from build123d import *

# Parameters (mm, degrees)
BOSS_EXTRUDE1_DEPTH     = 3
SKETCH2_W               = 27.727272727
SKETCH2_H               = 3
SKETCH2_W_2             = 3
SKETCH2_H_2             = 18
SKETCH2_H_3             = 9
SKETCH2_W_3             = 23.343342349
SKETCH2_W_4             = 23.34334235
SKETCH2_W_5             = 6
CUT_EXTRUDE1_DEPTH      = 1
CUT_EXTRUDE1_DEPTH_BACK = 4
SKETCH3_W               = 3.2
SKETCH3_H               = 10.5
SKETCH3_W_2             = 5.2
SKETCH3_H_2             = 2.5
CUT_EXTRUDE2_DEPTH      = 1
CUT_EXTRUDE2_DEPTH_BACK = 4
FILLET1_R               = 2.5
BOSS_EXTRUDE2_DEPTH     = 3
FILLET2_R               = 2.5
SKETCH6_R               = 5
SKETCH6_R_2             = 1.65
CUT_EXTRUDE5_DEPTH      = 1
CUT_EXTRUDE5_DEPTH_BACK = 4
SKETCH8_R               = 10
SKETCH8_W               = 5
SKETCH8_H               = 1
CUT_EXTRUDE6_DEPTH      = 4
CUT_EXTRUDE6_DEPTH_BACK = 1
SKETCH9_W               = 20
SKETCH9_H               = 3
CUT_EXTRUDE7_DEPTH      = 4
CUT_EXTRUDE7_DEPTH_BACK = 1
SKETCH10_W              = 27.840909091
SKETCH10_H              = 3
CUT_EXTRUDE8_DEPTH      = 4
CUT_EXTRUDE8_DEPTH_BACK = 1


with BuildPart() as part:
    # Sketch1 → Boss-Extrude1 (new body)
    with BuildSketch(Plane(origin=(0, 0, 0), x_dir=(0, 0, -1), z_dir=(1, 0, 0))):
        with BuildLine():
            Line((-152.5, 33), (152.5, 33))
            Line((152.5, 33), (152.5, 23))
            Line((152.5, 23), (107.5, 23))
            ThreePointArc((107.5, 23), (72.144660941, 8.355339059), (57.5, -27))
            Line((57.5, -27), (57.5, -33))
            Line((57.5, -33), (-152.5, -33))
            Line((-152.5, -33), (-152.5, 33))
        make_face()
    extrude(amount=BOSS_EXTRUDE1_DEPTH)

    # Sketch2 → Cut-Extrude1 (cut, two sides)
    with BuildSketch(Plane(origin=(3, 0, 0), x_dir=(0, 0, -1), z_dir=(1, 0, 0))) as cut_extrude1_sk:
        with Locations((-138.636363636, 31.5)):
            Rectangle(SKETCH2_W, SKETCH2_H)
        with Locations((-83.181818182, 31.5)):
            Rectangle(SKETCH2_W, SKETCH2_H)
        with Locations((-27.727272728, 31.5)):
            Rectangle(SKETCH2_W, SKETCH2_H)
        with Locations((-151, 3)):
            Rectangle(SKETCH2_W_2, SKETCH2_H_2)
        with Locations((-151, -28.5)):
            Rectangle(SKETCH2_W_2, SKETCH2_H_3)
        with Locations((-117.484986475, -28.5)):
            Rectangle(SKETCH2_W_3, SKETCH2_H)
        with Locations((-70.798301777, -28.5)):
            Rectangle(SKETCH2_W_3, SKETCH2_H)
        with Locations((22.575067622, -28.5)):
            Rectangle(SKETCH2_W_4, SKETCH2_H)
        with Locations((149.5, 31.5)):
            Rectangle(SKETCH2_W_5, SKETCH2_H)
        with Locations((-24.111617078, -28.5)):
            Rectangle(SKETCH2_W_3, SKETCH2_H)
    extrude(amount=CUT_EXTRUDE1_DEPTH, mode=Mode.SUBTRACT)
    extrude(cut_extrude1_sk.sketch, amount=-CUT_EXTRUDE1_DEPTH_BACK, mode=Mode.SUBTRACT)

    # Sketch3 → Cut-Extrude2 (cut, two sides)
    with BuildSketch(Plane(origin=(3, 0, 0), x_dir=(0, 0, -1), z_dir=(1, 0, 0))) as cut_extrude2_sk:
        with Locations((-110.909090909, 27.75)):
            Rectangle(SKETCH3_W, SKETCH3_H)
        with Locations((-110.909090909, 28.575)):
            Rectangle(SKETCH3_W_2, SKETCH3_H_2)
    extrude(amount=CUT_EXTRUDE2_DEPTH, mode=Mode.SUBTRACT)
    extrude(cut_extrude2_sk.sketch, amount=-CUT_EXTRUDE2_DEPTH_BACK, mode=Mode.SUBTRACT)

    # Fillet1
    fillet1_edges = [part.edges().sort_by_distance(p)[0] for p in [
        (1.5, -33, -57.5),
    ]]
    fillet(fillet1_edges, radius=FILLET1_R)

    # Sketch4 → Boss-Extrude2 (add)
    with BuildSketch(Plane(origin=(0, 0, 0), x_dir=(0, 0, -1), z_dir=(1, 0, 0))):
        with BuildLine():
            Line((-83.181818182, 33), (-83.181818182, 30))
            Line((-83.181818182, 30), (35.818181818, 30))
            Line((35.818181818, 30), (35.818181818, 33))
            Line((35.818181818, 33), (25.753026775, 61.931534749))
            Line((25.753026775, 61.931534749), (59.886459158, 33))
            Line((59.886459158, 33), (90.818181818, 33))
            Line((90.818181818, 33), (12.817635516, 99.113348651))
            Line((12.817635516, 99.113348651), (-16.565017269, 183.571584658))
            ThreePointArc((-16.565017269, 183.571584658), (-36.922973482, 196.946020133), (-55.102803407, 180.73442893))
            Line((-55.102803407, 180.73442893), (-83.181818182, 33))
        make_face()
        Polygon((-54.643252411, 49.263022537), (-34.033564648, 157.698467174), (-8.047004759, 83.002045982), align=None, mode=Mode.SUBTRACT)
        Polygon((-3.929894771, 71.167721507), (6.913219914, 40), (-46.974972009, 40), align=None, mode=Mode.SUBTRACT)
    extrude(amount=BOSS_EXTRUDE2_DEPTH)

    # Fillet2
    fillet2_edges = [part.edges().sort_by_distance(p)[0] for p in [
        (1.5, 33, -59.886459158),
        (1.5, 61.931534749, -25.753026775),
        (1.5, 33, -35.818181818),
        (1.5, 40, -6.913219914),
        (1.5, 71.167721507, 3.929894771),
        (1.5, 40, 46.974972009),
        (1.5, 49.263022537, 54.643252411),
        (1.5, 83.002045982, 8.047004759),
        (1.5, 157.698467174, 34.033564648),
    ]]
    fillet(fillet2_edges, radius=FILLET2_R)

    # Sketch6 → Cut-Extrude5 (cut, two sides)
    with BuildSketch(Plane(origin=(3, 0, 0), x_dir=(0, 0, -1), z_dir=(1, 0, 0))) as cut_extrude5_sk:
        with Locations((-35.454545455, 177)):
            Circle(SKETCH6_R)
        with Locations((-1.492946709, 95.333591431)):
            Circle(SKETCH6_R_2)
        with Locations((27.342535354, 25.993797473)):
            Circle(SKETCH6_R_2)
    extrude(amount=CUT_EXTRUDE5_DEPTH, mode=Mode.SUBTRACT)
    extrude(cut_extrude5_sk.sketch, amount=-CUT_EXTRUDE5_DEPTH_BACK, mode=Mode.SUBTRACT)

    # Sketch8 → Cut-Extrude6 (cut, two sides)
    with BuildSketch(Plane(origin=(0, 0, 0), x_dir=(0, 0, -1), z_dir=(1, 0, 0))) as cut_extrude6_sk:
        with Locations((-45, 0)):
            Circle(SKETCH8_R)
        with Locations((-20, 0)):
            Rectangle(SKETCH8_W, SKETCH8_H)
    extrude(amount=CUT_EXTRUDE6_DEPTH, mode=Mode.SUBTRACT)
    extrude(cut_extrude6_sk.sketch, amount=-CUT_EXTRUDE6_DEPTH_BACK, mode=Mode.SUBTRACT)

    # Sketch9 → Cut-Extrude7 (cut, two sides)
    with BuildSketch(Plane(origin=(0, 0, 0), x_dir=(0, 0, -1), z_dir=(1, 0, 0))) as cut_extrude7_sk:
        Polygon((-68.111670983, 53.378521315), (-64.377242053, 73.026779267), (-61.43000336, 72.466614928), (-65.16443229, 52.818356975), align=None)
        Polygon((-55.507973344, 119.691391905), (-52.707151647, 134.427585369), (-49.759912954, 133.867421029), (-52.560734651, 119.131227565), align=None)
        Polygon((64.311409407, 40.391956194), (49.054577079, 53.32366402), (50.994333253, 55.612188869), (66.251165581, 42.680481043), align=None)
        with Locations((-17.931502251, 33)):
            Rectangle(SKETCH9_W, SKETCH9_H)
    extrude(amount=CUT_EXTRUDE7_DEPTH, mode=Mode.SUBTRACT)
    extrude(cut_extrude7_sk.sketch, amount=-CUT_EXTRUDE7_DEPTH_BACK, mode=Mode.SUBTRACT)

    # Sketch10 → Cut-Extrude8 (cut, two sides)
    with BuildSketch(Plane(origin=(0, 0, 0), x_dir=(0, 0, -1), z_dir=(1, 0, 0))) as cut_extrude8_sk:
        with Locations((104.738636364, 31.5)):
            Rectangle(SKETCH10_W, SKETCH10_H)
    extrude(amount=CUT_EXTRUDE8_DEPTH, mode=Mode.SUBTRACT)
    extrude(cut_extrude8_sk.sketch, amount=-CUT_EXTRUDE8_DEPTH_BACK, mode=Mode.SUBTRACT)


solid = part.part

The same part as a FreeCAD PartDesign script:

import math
import FreeCAD as App
import Part
import Sketcher
from FreeCAD import Vector
Q = App.Units.Quantity


def edges_at(feature, points):
    """Names of the edges that pass closest to the given points."""
    edges = feature.Shape.Edges
    near = lambda p: min(range(len(edges)), key=lambda i: edges[i].distToShape(Part.Vertex(*p))[0])
    return sorted({f"Edge{near(p) + 1}" for p in points})


def add_polygon(sketch, points):
    """Adds a closed chain of lines whose ends are joined by coincident constraints."""
    first, n = sketch.GeometryCount, len(points)
    for a, b in zip(points, points[1:] + points[:1]):
        sketch.addGeometry(Part.LineSegment(App.Vector(*a, 0), App.Vector(*b, 0)), False)
    for i in range(n):
        sketch.addConstraint(Sketcher.Constraint("Coincident", first + i, 2, first + (i + 1) % n, 1))

doc = App.newDocument("Part")
params = doc.addObject("Spreadsheet::Sheet", "Params")
for row, (alias, value) in enumerate([
    ("sketch1_radius", "50 mm"),
    ("sketch1_width", "66 mm"),
    ("sketch1_width2", "6 mm"),
    ("sketch1_height", "305 mm"),
    ("sketch1_height2", "210 mm"),
    ("pad1_length", "3 mm"),
    ("sketch2_width", "3 mm"),
    ("sketch2_width2", "18 mm"),
    ("sketch2_width3", "9 mm"),
    ("sketch2_height", "6 mm"),
    ("sketch3_height", "1 mm"),
    ("sketch3_width", "2.5 mm"),
    ("sketch3_height2", "3.2 mm"),
    ("fillet_radius", "2.5 mm"),
    ("sketch4_radius", "20 mm"),
    ("sketch4_width", "3 mm"),
    ("sketch4_height", "119 mm"),
    ("sketch4_length", "33 mm"),
    ("pad2_length", "3 mm"),
    ("fillet2_radius", "2.5 mm"),
    ("sketch5_diameter", "10 mm"),
    ("sketch5_diameter2", "3.3 mm"),
    ("sketch6_diameter", "20 mm"),
    ("sketch6_width", "1 mm"),
    ("sketch6_height", "5 mm"),
    ("sketch7_width", "3 mm"),
    ("sketch7_height", "20 mm"),
    ("sketch7_length", "20 mm"),
    ("sketch7_length2", "3 mm"),
    ("sketch7_length3", "15 mm"),
    ("sketch8_width", "3 mm"),
], start=1):
    params.set(f"A{row}", alias)
    params.set(f"B{row}", "=" + value)
    params.setAlias(f"B{row}", alias)

body = doc.addObject("PartDesign::Body", "Body")

sketch1 = doc.addObject("Sketcher::SketchObject", "Sketch")
body.addObject(sketch1)
sketch1.AttachmentSupport = (doc.YZ_Plane, [""])
sketch1.MapMode = "FlatFace"
sketch1.addGeometry([
    Part.LineSegment(Vector(33, -152, 0), Vector(33, 152, 0)),
    Part.LineSegment(Vector(33, 152, 0), Vector(-33, 152, 0)),
    Part.LineSegment(Vector(-33, 152, 0), Vector(-33, -58, 0)),
    Part.LineSegment(Vector(-33, -58, 0), Vector(-27, -58, 0)),
    Part.ArcOfCircle(Part.Circle(Vector(-27, -108, 0), Vector(0, 0, 1), 50), math.radians(0), math.radians(90)),
    Part.LineSegment(Vector(23, -108, 0), Vector(23, -152, 0)),
    Part.LineSegment(Vector(23, -152, 0), Vector(33, -152, 0)),
], False)
sketch1.addConstraint([
    Sketcher.Constraint("Coincident", 0, 2, 1, 1),
    Sketcher.Constraint("Coincident", 1, 2, 2, 1),
    Sketcher.Constraint("Coincident", 2, 2, 3, 1),
    Sketcher.Constraint("Tangent", 3, 2, 4, 2),
    Sketcher.Constraint("Tangent", 4, 1, 5, 1),
    Sketcher.Constraint("Coincident", 5, 2, 6, 1),
    Sketcher.Constraint("Coincident", 6, 2, 0, 1),
    Sketcher.Constraint("Vertical", 0),
    Sketcher.Constraint("Horizontal", 1),
    Sketcher.Constraint("Vertical", 2),
    Sketcher.Constraint("Horizontal", 3),
    Sketcher.Constraint("Vertical", 5),
    Sketcher.Constraint("Horizontal", 6),
    Sketcher.Constraint("Symmetric", 1, 2, 6, 2, -1, 1),
    Sketcher.Constraint("Radius", 4, Q("50 mm")),
    Sketcher.Constraint("DistanceX", 1, 2, 1, 1, Q("66 mm")),
    Sketcher.Constraint("DistanceX", 3, 1, 3, 2, Q("6 mm")),
    Sketcher.Constraint("DistanceY", 0, 1, 0, 2, Q("305 mm")),
    Sketcher.Constraint("DistanceY", 2, 2, 2, 1, Q("210 mm")),
])
sketch1.setExpression("Constraints[14]", "Params.sketch1_radius")
sketch1.setExpression("Constraints[15]", "Params.sketch1_width")
sketch1.setExpression("Constraints[16]", "Params.sketch1_width2")
sketch1.setExpression("Constraints[17]", "Params.sketch1_height")
sketch1.setExpression("Constraints[18]", "Params.sketch1_height2")
pad1 = doc.addObject("PartDesign::Pad", "Pad")
body.addObject(pad1)
pad1.Profile = sketch1
pad1.setExpression("Length", "Params.pad1_length")

sketch2 = doc.addObject("Sketcher::SketchObject", "Sketch001")
body.addObject(sketch2)
sketch2.AttachmentSupport = (doc.YZ_Plane, [""])
sketch2.MapMode = "FlatFace"
sketch2.AttachmentOffset = App.Placement(Vector(0, 0, 3), App.Rotation())
add_polygon(sketch2, [(33, 152.5), (30, 152.5), (30, 124.8), (33, 124.8)])
add_polygon(sketch2, [(33, 97), (30, 97), (30, 69.3), (33, 69.3)])
add_polygon(sketch2, [(33, 41.6), (30, 41.6), (30, 13.9), (33, 13.9)])
add_polygon(sketch2, [(12, 152.5), (-6, 152.5), (-6, 149.5), (12, 149.5)])
add_polygon(sketch2, [(-24, 152.5), (-33, 152.5), (-33, 149.5), (-24, 149.5)])
add_polygon(sketch2, [(-27, 129.2), (-30, 129.2), (-30, 105.8), (-27, 105.8)])
add_polygon(sketch2, [(-27, 82.5), (-30, 82.5), (-30, 59.1), (-27, 59.1)])
add_polygon(sketch2, [(-27, -10.9), (-30, -10.9), (-30, -34.2), (-27, -34.2)])
add_polygon(sketch2, [(33, -146.5), (30, -146.5), (30, -152.5), (33, -152.5)])
add_polygon(sketch2, [(-27, 35.8), (-30, 35.8), (-30, 12.4), (-27, 12.4)])
sketch2.addConstraint([
    Sketcher.Constraint("Horizontal", 0),
    Sketcher.Constraint("Vertical", 1),
    Sketcher.Constraint("Horizontal", 2),
    Sketcher.Constraint("Vertical", 3),
    Sketcher.Constraint("Horizontal", 4),
    Sketcher.Constraint("Vertical", 5),
    Sketcher.Constraint("Horizontal", 6),
    Sketcher.Constraint("Vertical", 7),
    Sketcher.Constraint("Horizontal", 8),
    Sketcher.Constraint("Vertical", 9),
    Sketcher.Constraint("Horizontal", 10),
    Sketcher.Constraint("Vertical", 11),
    Sketcher.Constraint("Horizontal", 12),
    Sketcher.Constraint("Vertical", 13),
    Sketcher.Constraint("Horizontal", 14),
    Sketcher.Constraint("Vertical", 15),
    Sketcher.Constraint("Horizontal", 16),
    Sketcher.Constraint("Vertical", 17),
    Sketcher.Constraint("Horizontal", 18),
    Sketcher.Constraint("Vertical", 19),
    Sketcher.Constraint("Horizontal", 20),
    Sketcher.Constraint("Vertical", 21),
    Sketcher.Constraint("Horizontal", 22),
    Sketcher.Constraint("Vertical", 23),
    Sketcher.Constraint("Horizontal", 24),
    Sketcher.Constraint("Vertical", 25),
    Sketcher.Constraint("Horizontal", 26),
    Sketcher.Constraint("Vertical", 27),
    Sketcher.Constraint("Horizontal", 28),
    Sketcher.Constraint("Vertical", 29),
    Sketcher.Constraint("Horizontal", 30),
    Sketcher.Constraint("Vertical", 31),
    Sketcher.Constraint("Horizontal", 32),
    Sketcher.Constraint("Vertical", 33),
    Sketcher.Constraint("Horizontal", 34),
    Sketcher.Constraint("Vertical", 35),
    Sketcher.Constraint("Horizontal", 36),
    Sketcher.Constraint("Vertical", 37),
    Sketcher.Constraint("Horizontal", 38),
    Sketcher.Constraint("Vertical", 39),
    Sketcher.Constraint("Symmetric", 16, 2, 34, 2, -1, 1),
    Sketcher.Constraint("Symmetric", 3, 2, 16, 2, -2),
    Sketcher.Constraint("Horizontal", 3, 2, 12, 2),
    Sketcher.Constraint("Horizontal", 14, 2, 17, 2),
    Sketcher.Constraint("Vertical", 1, 2, 4, 2),
    Sketcher.Constraint("Vertical", 3, 2, 6, 2),
    Sketcher.Constraint("Vertical", 5, 2, 8, 2),
    Sketcher.Constraint("Vertical", 7, 2, 10, 2),
    Sketcher.Constraint("Vertical", 21, 2, 24, 2),
    Sketcher.Constraint("Vertical", 23, 2, 26, 2),
    Sketcher.Constraint("Vertical", 25, 2, 28, 2),
    Sketcher.Constraint("Vertical", 27, 2, 30, 2),
    Sketcher.Constraint("Vertical", 9, 2, 32, 2),
    Sketcher.Constraint("Vertical", 29, 2, 36, 2),
    Sketcher.Constraint("Vertical", 31, 2, 38, 2),
    Sketcher.Constraint("Equal", 10, 20),
    Sketcher.Constraint("Equal", 3, 5),
    Sketcher.Constraint("Equal", 7, 9),
    Sketcher.Constraint("Equal", 38, 13),
    Sketcher.Constraint("Equal", 23, 25),
    Sketcher.Constraint("Equal", 27, 29),
    Sketcher.Constraint("Equal", 31, 37),
    Sketcher.Constraint("DistanceX", 0, 2, 0, 1, Q("3 mm")),
    Sketcher.Constraint("DistanceX", 12, 2, 12, 1, Q("18 mm")),
    Sketcher.Constraint("DistanceX", 16, 2, 16, 1, Q("9 mm")),
    Sketcher.Constraint("DistanceY", 33, 2, 33, 1, Q("6 mm")),
    Sketcher.Constraint("DistanceX", -1, 1, 0, 2, Q("30 mm")),
    Sketcher.Constraint("DistanceX", 12, 2, -1, 1, Q("6 mm")),
    Sketcher.Constraint("DistanceX", 20, 2, -1, 1, Q("30 mm")),
    Sketcher.Constraint("DistanceY", -1, 1, 0, 2, Q("152.5 mm")),
    Sketcher.Constraint("DistanceY", 1, 2, 1, 1, Q("27.727273 mm")),
    Sketcher.Constraint("DistanceY", 21, 2, 21, 1, Q("23.343342 mm")),
    Sketcher.Constraint("DistanceY", -1, 1, 5, 2, Q("69.318182 mm")),
    Sketcher.Constraint("DistanceY", -1, 1, 8, 2, Q("41.590909 mm")),
    Sketcher.Constraint("DistanceY", -1, 1, 25, 2, Q("59.126631 mm")),
    Sketcher.Constraint("DistanceY", 29, 2, -1, 1, Q("34.246739 mm")),
    Sketcher.Constraint("DistanceY", -1, 1, 36, 2, Q("35.783288 mm")),
    Sketcher.Constraint("DistanceY", -1, 1, 20, 2, Q("129.156658 mm")),
])
sketch2.setExpression("Constraints[102]", "Params.sketch2_width")
sketch2.setExpression("Constraints[103]", "Params.sketch2_width2")
sketch2.setExpression("Constraints[104]", "Params.sketch2_width3")
sketch2.setExpression("Constraints[105]", "Params.sketch2_height")
pocket1 = doc.addObject("PartDesign::Pocket", "Pocket")
body.addObject(pocket1)
pocket1.Profile = sketch2
pocket1.Type = "ThroughAll"
pocket1.Midplane = True

sketch3 = doc.addObject("Sketcher::SketchObject", "Sketch002")
body.addObject(sketch3)
sketch3.AttachmentSupport = (doc.YZ_Plane, [""])
sketch3.MapMode = "FlatFace"
sketch3.AttachmentOffset = App.Placement(Vector(0, 0, 3), App.Rotation())
add_polygon(sketch3, [(27.3, 112.5), (22.5, 112.5), (22.5, 109.3), (27.3, 109.3), (27.3, 108.3), (29.8, 108.3), (29.8, 109.3), (33, 109.3), (33, 112.5), (29.8, 112.5), (29.8, 113.5), (27.3, 113.5)])
sketch3.addConstraint([
    Sketcher.Constraint("Horizontal", 0),
    Sketcher.Constraint("Vertical", 1),
    Sketcher.Constraint("Horizontal", 2),
    Sketcher.Constraint("Vertical", 3),
    Sketcher.Constraint("Horizontal", 4),
    Sketcher.Constraint("Vertical", 5),
    Sketcher.Constraint("Horizontal", 6),
    Sketcher.Constraint("Vertical", 7),
    Sketcher.Constraint("Horizontal", 8),
    Sketcher.Constraint("Vertical", 9),
    Sketcher.Constraint("Horizontal", 10),
    Sketcher.Constraint("Vertical", 11),
    Sketcher.Constraint("Horizontal", 2, 2, 5, 2),
    Sketcher.Constraint("Horizontal", 0, 2, 7, 2),
    Sketcher.Constraint("Vertical", 5, 2, 8, 2),
    Sketcher.Constraint("Vertical", 3, 2, 10, 2),
    Sketcher.Constraint("Equal", 5, 9),
    Sketcher.Constraint("DistanceY", 3, 2, 3, 1, Q("1 mm")),
    Sketcher.Constraint("DistanceX", 4, 1, 4, 2, Q("2.5 mm")),
    Sketcher.Constraint("DistanceY", 1, 2, 1, 1, Q("3.2 mm")),
    Sketcher.Constraint("DistanceX", -1, 1, 6, 2, Q("33 mm")),
    Sketcher.Constraint("DistanceX", -1, 1, 0, 2, Q("22.5 mm")),
    Sketcher.Constraint("DistanceX", 0, 2, 0, 1, Q("4.825 mm")),
    Sketcher.Constraint("DistanceY", -1, 1, 0, 2, Q("112.509091 mm")),
])
sketch3.setExpression("Constraints[29]", "Params.sketch3_height")
sketch3.setExpression("Constraints[30]", "Params.sketch3_width")
sketch3.setExpression("Constraints[31]", "Params.sketch3_height2")
pocket2 = doc.addObject("PartDesign::Pocket", "Pocket001")
body.addObject(pocket2)
pocket2.Profile = sketch3
pocket2.Type = "ThroughAll"
pocket2.Midplane = True
doc.recompute()

fillet = doc.addObject("PartDesign::Fillet", "Fillet")
body.addObject(fillet)
fillet.Base = (pocket2, edges_at(pocket2, [(1.5, -33, -57.5)]))
fillet.setExpression("Radius", "Params.fillet_radius")

sketch4 = doc.addObject("Sketcher::SketchObject", "Sketch003")
body.addObject(sketch4)
sketch4.AttachmentSupport = (doc.YZ_Plane, [""])
sketch4.MapMode = "FlatFace"
sketch4.addGeometry(Part.LineSegment(Vector(33, 83.2, 0), Vector(30, 83.2, 0)), False)
sketch4.addGeometry(Part.LineSegment(Vector(30, 83.2, 0), Vector(30, -35.8, 0)), False)
sketch4.addGeometry(Part.LineSegment(Vector(30, -35.8, 0), Vector(33, -35.8, 0)), False)
sketch4.addGeometry(Part.LineSegment(Vector(33, -35.8, 0), Vector(61.9, -25.8, 0)), False)
sketch4.addGeometry(Part.LineSegment(Vector(61.9, -25.8, 0), Vector(33, -59.9, 0)), False)
sketch4.addGeometry(Part.LineSegment(Vector(33, -59.9, 0), Vector(33, -90.8, 0)), False)
sketch4.addGeometry(Part.LineSegment(Vector(33, -90.8, 0), Vector(99.1, -12.8, 0)), False)
sketch4.addGeometry(Part.LineSegment(Vector(99.1, -12.8, 0), Vector(183.6, 16.6, 0)), False)
sketch4.addGeometry(Part.ArcOfCircle(Part.Circle(Vector(177, 35.5, 0), Vector(0, 0, 1), 20), math.radians(-71), math.radians(79)), False)
sketch4.addGeometry(Part.LineSegment(Vector(180.7, 55.1, 0), Vector(33, 83.2, 0)), False)
add_polygon(sketch4, [(40, 47), (71.2, 3.9), (40, -6.9)])
add_polygon(sketch4, [(83, 8), (49.3, 54.6), (157.7, 34)])
sketch4.addConstraint([
    Sketcher.Constraint("Coincident", 0, 2, 1, 1),
    Sketcher.Constraint("Coincident", 1, 2, 2, 1),
    Sketcher.Constraint("Coincident", 2, 2, 3, 1),
    Sketcher.Constraint("Coincident", 3, 2, 4, 1),
    Sketcher.Constraint("Coincident", 4, 2, 5, 1),
    Sketcher.Constraint("Coincident", 5, 2, 6, 1),
    Sketcher.Constraint("Coincident", 6, 2, 7, 1),
    Sketcher.Constraint("Tangent", 7, 2, 8, 1),
    Sketcher.Constraint("Tangent", 8, 2, 9, 1),
    Sketcher.Constraint("Coincident", 9, 2, 0, 1),
    Sketcher.Constraint("Horizontal", 0),
    Sketcher.Constraint("Vertical", 1),
    Sketcher.Constraint("Horizontal", 2),
    Sketcher.Constraint("Vertical", 5),
    Sketcher.Constraint("Vertical", 12),
    Sketcher.Constraint("Parallel", 4, 6),
    Sketcher.Constraint("Parallel", 3, 7),
    Sketcher.Constraint("Parallel", 7, 11),
    Sketcher.Constraint("Parallel", 10, 13),
    Sketcher.Constraint("Parallel", 9, 14),
    Sketcher.Constraint("Parallel", 11, 15),
    Sketcher.Constraint("Vertical", 2, 2, 4, 2),
    Sketcher.Constraint("Vertical", 5, 2, 9, 2),
    Sketcher.Constraint("Radius", 8, Q("20 mm")),
    Sketcher.Constraint("DistanceX", 0, 2, 0, 1, Q("3 mm")),
    Sketcher.Constraint("DistanceY", 1, 2, 1, 1, Q("119 mm")),
    Sketcher.Constraint("Distance", 11, Q("33 mm")),
    Sketcher.Constraint("DistanceX", -1, 1, 8, 3, Q("177 mm")),
    Sketcher.Constraint("DistanceX", -1, 1, 0, 2, Q("30 mm")),
    Sketcher.Constraint("DistanceX", -1, 1, 11, 2, Q("40 mm")),
    Sketcher.Constraint("DistanceY", 5, 2, 2, 2, Q("55 mm")),
    Sketcher.Constraint("DistanceY", 3, 2, 12, 2, Q("72.727999 mm")),
    Sketcher.Constraint("DistanceY", 12, 1, 12, 2, Q("53.888192 mm")),
    Sketcher.Constraint("DistanceY", 2, 2, 7, 2, Q("52.383199 mm")),
    Sketcher.Constraint("DistanceX", 13, 2, 10, 2, Q("21.904699 mm")),
    Sketcher.Constraint("DistanceY", 6, 2, 14, 2, Q("46.8512 mm")),
    Sketcher.Constraint("Distance", 4, Q("44.74511 mm")),
    Sketcher.Constraint("Distance", 6, Q("102.249988 mm")),
    Sketcher.Constraint("Distance", 7, Q("89.423341 mm")),
    Sketcher.Constraint("Distance", 14, Q("110.37665 mm")),
    Sketcher.Constraint("DistanceY", -1, 1, 0, 2, Q("83.181818 mm")),
])
sketch4.setExpression("Constraints[29]", "Params.sketch4_radius")
sketch4.setExpression("Constraints[30]", "Params.sketch4_width")
sketch4.setExpression("Constraints[31]", "Params.sketch4_height")
sketch4.setExpression("Constraints[32]", "Params.sketch4_length")
pad2 = doc.addObject("PartDesign::Pad", "Pad001")
body.addObject(pad2)
pad2.Profile = sketch4
pad2.setExpression("Length", "Params.pad2_length")
doc.recompute()

fillet2 = doc.addObject("PartDesign::Fillet", "Fillet001")
body.addObject(fillet2)
fillet2.Base = (pad2, edges_at(pad2, [
    (1.5, 33, -59.886),
    (1.5, 61.932, -25.753),
    (1.5, 33, -35.818),
    (1.5, 40, -6.913),
    (1.5, 71.168, 3.93),
    (1.5, 40, 46.975),
    (1.5, 49.263, 54.643),
    (1.5, 83.002, 8.047),
    (1.5, 157.698, 34.034),
]))
fillet2.setExpression("Radius", "Params.fillet2_radius")

sketch5 = doc.addObject("Sketcher::SketchObject", "Sketch004")
body.addObject(sketch5)
sketch5.AttachmentSupport = (doc.YZ_Plane, [""])
sketch5.MapMode = "FlatFace"
sketch5.AttachmentOffset = App.Placement(Vector(0, 0, 3), App.Rotation())
sketch5.addGeometry([
    Part.Circle(Vector(177, 35.5, 0), Vector(0, 0, 1), 5),
    Part.Circle(Vector(95.3, 1.5, 0), Vector(0, 0, 1), 1.6),
    Part.Circle(Vector(26, -27.3, 0), Vector(0, 0, 1), 1.6),
], False)
sketch5.addConstraint([
    Sketcher.Constraint("Equal", 1, 2),
    Sketcher.Constraint("Diameter", 0, Q("10 mm")),
    Sketcher.Constraint("Diameter", 1, Q("3.3 mm")),
    Sketcher.Constraint("DistanceX", -1, 1, 0, 3, Q("177 mm")),
    Sketcher.Constraint("DistanceY", 1, 3, 0, 3, Q("33.961599 mm")),
    Sketcher.Constraint("DistanceX", -1, 1, 1, 3, Q("95.333591 mm")),
    Sketcher.Constraint("DistanceY", 2, 3, 0, 3, Q("62.797081 mm")),
    Sketcher.Constraint("DistanceY", -1, 1, 0, 3, Q("35.454545 mm")),
    Sketcher.Constraint("DistanceX", -1, 1, 2, 3, Q("25.993797 mm")),
])
sketch5.setExpression("Constraints[1]", "Params.sketch5_diameter")
sketch5.setExpression("Constraints[2]", "Params.sketch5_diameter2")
pocket3 = doc.addObject("PartDesign::Pocket", "Pocket002")
body.addObject(pocket3)
pocket3.Profile = sketch5
pocket3.Type = "ThroughAll"
pocket3.Midplane = True

sketch6 = doc.addObject("Sketcher::SketchObject", "Sketch005")
body.addObject(sketch6)
sketch6.AttachmentSupport = (doc.YZ_Plane, [""])
sketch6.MapMode = "FlatFace"
sketch6.addGeometry(Part.Circle(Vector(0, 45, 0), Vector(0, 0, 1), 10), False)
add_polygon(sketch6, [(0.5, 22.5), (-0.5, 22.5), (-0.5, 17.5), (0.5, 17.5)])
sketch6.addConstraint([
    Sketcher.Constraint("Horizontal", 1),
    Sketcher.Constraint("Vertical", 2),
    Sketcher.Constraint("Horizontal", 3),
    Sketcher.Constraint("Vertical", 4),
    Sketcher.Constraint("PointOnObject", 0, 3, -2),
    Sketcher.Constraint("Diameter", 0, Q("20 mm")),
    Sketcher.Constraint("DistanceX", 1, 2, 1, 1, Q("1 mm")),
    Sketcher.Constraint("DistanceY", 2, 2, 2, 1, Q("5 mm")),
    Sketcher.Constraint("DistanceY", -1, 1, 0, 3, Q("45 mm")),
    Sketcher.Constraint("DistanceX", 1, 2, -1, 1, Q("0.5 mm")),
    Sketcher.Constraint("DistanceY", -1, 1, 1, 2, Q("22.5 mm")),
])
sketch6.setExpression("Constraints[9]", "Params.sketch6_diameter")
sketch6.setExpression("Constraints[10]", "Params.sketch6_width")
sketch6.setExpression("Constraints[11]", "Params.sketch6_height")
pocket4 = doc.addObject("PartDesign::Pocket", "Pocket003")
body.addObject(pocket4)
pocket4.Profile = sketch6
pocket4.Type = "ThroughAll"
pocket4.Midplane = True

sketch7 = doc.addObject("Sketcher::SketchObject", "Sketch006")
body.addObject(sketch7)
sketch7.AttachmentSupport = (doc.YZ_Plane, [""])
sketch7.MapMode = "FlatFace"
add_polygon(sketch7, [(73, 64.4), (53.4, 68.1), (52.8, 65.2), (72.5, 61.4)])
add_polygon(sketch7, [(134.4, 52.7), (119.7, 55.5), (119.1, 52.6), (133.9, 49.8)])
add_polygon(sketch7, [(53.3, -49.1), (40.4, -64.3), (42.7, -66.3), (55.6, -51)])
add_polygon(sketch7, [(34.5, 27.9), (31.5, 27.9), (31.5, 7.9), (34.5, 7.9)])
sketch7.addConstraint([
    Sketcher.Constraint("Horizontal", 12),
    Sketcher.Constraint("Vertical", 13),
    Sketcher.Constraint("Horizontal", 14),
    Sketcher.Constraint("Vertical", 15),
    Sketcher.Constraint("Perpendicular", 0, 1),
    Sketcher.Constraint("Perpendicular", 1, 2),
    Sketcher.Constraint("Perpendicular", 2, 3),
    Sketcher.Constraint("Perpendicular", 3, 4),
    Sketcher.Constraint("Perpendicular", 4, 5),
    Sketcher.Constraint("Perpendicular", 5, 6),
    Sketcher.Constraint("Perpendicular", 6, 7),
    Sketcher.Constraint("Perpendicular", 8, 9),
    Sketcher.Constraint("Perpendicular", 9, 10),
    Sketcher.Constraint("Perpendicular", 10, 11),
    Sketcher.Constraint("Equal", 3, 5),
    Sketcher.Constraint("Equal", 2, 8),
    Sketcher.Constraint("Equal", 7, 9),
    Sketcher.Constraint("DistanceX", 12, 2, 12, 1, Q("3 mm")),
    Sketcher.Constraint("DistanceY", 13, 2, 13, 1, Q("20 mm")),
    Sketcher.Constraint("Distance", 0, Q("20 mm")),
    Sketcher.Constraint("Distance", 1, Q("3 mm")),
    Sketcher.Constraint("Distance", 4, Q("15 mm")),
    Sketcher.Constraint("DistanceX", -1, 1, 12, 2, Q("31.5 mm")),
    Sketcher.Constraint("DistanceX", 8, 2, 1, 2, Q("12.426401 mm")),
    Sketcher.Constraint("DistanceX", 9, 2, 3, 2, Q("30.346298 mm")),
    Sketcher.Constraint("DistanceY", 12, 2, 2, 2, Q("33.498501 mm")),
    Sketcher.Constraint("DistanceX", -1, 1, 0, 2, Q("53.378521 mm")),
    Sketcher.Constraint("DistanceY", -1, 1, 0, 2, Q("68.111671 mm")),
    Sketcher.Constraint("DistanceX", -1, 1, 3, 2, Q("73.026779 mm")),
    Sketcher.Constraint("DistanceX", -1, 1, 4, 2, Q("119.691392 mm")),
    Sketcher.Constraint("DistanceY", -1, 1, 7, 2, Q("52.707152 mm")),
    Sketcher.Constraint("DistanceY", 8, 2, -1, 1, Q("64.311409 mm")),
])
sketch7.setExpression("Constraints[33]", "Params.sketch7_width")
sketch7.setExpression("Constraints[34]", "Params.sketch7_height")
sketch7.setExpression("Constraints[35]", "Params.sketch7_length")
sketch7.setExpression("Constraints[36]", "Params.sketch7_length2")
sketch7.setExpression("Constraints[37]", "Params.sketch7_length3")
pocket5 = doc.addObject("PartDesign::Pocket", "Pocket004")
body.addObject(pocket5)
pocket5.Profile = sketch7
pocket5.Type = "ThroughAll"
pocket5.Midplane = True

sketch8 = doc.addObject("Sketcher::SketchObject", "Sketch007")
body.addObject(sketch8)
sketch8.AttachmentSupport = (doc.YZ_Plane, [""])
sketch8.MapMode = "FlatFace"
add_polygon(sketch8, [(33, -90.8), (30, -90.8), (30, -118.7), (33, -118.7)])
sketch8.addConstraint([
    Sketcher.Constraint("Horizontal", 0),
    Sketcher.Constraint("Vertical", 1),
    Sketcher.Constraint("Horizontal", 2),
    Sketcher.Constraint("Vertical", 3),
    Sketcher.Constraint("DistanceX", 0, 2, 0, 1, Q("3 mm")),
    Sketcher.Constraint("DistanceX", -1, 1, 0, 2, Q("30 mm")),
    Sketcher.Constraint("DistanceY", 1, 2, 1, 1, Q("27.840909 mm")),
    Sketcher.Constraint("DistanceY", 0, 2, -1, 1, Q("90.818182 mm")),
])
sketch8.setExpression("Constraints[8]", "Params.sketch8_width")
pocket6 = doc.addObject("PartDesign::Pocket", "Pocket005")
body.addObject(pocket6)
pocket6.Profile = sketch8
pocket6.Type = "ThroughAll"
pocket6.Midplane = True

doc.recompute()
